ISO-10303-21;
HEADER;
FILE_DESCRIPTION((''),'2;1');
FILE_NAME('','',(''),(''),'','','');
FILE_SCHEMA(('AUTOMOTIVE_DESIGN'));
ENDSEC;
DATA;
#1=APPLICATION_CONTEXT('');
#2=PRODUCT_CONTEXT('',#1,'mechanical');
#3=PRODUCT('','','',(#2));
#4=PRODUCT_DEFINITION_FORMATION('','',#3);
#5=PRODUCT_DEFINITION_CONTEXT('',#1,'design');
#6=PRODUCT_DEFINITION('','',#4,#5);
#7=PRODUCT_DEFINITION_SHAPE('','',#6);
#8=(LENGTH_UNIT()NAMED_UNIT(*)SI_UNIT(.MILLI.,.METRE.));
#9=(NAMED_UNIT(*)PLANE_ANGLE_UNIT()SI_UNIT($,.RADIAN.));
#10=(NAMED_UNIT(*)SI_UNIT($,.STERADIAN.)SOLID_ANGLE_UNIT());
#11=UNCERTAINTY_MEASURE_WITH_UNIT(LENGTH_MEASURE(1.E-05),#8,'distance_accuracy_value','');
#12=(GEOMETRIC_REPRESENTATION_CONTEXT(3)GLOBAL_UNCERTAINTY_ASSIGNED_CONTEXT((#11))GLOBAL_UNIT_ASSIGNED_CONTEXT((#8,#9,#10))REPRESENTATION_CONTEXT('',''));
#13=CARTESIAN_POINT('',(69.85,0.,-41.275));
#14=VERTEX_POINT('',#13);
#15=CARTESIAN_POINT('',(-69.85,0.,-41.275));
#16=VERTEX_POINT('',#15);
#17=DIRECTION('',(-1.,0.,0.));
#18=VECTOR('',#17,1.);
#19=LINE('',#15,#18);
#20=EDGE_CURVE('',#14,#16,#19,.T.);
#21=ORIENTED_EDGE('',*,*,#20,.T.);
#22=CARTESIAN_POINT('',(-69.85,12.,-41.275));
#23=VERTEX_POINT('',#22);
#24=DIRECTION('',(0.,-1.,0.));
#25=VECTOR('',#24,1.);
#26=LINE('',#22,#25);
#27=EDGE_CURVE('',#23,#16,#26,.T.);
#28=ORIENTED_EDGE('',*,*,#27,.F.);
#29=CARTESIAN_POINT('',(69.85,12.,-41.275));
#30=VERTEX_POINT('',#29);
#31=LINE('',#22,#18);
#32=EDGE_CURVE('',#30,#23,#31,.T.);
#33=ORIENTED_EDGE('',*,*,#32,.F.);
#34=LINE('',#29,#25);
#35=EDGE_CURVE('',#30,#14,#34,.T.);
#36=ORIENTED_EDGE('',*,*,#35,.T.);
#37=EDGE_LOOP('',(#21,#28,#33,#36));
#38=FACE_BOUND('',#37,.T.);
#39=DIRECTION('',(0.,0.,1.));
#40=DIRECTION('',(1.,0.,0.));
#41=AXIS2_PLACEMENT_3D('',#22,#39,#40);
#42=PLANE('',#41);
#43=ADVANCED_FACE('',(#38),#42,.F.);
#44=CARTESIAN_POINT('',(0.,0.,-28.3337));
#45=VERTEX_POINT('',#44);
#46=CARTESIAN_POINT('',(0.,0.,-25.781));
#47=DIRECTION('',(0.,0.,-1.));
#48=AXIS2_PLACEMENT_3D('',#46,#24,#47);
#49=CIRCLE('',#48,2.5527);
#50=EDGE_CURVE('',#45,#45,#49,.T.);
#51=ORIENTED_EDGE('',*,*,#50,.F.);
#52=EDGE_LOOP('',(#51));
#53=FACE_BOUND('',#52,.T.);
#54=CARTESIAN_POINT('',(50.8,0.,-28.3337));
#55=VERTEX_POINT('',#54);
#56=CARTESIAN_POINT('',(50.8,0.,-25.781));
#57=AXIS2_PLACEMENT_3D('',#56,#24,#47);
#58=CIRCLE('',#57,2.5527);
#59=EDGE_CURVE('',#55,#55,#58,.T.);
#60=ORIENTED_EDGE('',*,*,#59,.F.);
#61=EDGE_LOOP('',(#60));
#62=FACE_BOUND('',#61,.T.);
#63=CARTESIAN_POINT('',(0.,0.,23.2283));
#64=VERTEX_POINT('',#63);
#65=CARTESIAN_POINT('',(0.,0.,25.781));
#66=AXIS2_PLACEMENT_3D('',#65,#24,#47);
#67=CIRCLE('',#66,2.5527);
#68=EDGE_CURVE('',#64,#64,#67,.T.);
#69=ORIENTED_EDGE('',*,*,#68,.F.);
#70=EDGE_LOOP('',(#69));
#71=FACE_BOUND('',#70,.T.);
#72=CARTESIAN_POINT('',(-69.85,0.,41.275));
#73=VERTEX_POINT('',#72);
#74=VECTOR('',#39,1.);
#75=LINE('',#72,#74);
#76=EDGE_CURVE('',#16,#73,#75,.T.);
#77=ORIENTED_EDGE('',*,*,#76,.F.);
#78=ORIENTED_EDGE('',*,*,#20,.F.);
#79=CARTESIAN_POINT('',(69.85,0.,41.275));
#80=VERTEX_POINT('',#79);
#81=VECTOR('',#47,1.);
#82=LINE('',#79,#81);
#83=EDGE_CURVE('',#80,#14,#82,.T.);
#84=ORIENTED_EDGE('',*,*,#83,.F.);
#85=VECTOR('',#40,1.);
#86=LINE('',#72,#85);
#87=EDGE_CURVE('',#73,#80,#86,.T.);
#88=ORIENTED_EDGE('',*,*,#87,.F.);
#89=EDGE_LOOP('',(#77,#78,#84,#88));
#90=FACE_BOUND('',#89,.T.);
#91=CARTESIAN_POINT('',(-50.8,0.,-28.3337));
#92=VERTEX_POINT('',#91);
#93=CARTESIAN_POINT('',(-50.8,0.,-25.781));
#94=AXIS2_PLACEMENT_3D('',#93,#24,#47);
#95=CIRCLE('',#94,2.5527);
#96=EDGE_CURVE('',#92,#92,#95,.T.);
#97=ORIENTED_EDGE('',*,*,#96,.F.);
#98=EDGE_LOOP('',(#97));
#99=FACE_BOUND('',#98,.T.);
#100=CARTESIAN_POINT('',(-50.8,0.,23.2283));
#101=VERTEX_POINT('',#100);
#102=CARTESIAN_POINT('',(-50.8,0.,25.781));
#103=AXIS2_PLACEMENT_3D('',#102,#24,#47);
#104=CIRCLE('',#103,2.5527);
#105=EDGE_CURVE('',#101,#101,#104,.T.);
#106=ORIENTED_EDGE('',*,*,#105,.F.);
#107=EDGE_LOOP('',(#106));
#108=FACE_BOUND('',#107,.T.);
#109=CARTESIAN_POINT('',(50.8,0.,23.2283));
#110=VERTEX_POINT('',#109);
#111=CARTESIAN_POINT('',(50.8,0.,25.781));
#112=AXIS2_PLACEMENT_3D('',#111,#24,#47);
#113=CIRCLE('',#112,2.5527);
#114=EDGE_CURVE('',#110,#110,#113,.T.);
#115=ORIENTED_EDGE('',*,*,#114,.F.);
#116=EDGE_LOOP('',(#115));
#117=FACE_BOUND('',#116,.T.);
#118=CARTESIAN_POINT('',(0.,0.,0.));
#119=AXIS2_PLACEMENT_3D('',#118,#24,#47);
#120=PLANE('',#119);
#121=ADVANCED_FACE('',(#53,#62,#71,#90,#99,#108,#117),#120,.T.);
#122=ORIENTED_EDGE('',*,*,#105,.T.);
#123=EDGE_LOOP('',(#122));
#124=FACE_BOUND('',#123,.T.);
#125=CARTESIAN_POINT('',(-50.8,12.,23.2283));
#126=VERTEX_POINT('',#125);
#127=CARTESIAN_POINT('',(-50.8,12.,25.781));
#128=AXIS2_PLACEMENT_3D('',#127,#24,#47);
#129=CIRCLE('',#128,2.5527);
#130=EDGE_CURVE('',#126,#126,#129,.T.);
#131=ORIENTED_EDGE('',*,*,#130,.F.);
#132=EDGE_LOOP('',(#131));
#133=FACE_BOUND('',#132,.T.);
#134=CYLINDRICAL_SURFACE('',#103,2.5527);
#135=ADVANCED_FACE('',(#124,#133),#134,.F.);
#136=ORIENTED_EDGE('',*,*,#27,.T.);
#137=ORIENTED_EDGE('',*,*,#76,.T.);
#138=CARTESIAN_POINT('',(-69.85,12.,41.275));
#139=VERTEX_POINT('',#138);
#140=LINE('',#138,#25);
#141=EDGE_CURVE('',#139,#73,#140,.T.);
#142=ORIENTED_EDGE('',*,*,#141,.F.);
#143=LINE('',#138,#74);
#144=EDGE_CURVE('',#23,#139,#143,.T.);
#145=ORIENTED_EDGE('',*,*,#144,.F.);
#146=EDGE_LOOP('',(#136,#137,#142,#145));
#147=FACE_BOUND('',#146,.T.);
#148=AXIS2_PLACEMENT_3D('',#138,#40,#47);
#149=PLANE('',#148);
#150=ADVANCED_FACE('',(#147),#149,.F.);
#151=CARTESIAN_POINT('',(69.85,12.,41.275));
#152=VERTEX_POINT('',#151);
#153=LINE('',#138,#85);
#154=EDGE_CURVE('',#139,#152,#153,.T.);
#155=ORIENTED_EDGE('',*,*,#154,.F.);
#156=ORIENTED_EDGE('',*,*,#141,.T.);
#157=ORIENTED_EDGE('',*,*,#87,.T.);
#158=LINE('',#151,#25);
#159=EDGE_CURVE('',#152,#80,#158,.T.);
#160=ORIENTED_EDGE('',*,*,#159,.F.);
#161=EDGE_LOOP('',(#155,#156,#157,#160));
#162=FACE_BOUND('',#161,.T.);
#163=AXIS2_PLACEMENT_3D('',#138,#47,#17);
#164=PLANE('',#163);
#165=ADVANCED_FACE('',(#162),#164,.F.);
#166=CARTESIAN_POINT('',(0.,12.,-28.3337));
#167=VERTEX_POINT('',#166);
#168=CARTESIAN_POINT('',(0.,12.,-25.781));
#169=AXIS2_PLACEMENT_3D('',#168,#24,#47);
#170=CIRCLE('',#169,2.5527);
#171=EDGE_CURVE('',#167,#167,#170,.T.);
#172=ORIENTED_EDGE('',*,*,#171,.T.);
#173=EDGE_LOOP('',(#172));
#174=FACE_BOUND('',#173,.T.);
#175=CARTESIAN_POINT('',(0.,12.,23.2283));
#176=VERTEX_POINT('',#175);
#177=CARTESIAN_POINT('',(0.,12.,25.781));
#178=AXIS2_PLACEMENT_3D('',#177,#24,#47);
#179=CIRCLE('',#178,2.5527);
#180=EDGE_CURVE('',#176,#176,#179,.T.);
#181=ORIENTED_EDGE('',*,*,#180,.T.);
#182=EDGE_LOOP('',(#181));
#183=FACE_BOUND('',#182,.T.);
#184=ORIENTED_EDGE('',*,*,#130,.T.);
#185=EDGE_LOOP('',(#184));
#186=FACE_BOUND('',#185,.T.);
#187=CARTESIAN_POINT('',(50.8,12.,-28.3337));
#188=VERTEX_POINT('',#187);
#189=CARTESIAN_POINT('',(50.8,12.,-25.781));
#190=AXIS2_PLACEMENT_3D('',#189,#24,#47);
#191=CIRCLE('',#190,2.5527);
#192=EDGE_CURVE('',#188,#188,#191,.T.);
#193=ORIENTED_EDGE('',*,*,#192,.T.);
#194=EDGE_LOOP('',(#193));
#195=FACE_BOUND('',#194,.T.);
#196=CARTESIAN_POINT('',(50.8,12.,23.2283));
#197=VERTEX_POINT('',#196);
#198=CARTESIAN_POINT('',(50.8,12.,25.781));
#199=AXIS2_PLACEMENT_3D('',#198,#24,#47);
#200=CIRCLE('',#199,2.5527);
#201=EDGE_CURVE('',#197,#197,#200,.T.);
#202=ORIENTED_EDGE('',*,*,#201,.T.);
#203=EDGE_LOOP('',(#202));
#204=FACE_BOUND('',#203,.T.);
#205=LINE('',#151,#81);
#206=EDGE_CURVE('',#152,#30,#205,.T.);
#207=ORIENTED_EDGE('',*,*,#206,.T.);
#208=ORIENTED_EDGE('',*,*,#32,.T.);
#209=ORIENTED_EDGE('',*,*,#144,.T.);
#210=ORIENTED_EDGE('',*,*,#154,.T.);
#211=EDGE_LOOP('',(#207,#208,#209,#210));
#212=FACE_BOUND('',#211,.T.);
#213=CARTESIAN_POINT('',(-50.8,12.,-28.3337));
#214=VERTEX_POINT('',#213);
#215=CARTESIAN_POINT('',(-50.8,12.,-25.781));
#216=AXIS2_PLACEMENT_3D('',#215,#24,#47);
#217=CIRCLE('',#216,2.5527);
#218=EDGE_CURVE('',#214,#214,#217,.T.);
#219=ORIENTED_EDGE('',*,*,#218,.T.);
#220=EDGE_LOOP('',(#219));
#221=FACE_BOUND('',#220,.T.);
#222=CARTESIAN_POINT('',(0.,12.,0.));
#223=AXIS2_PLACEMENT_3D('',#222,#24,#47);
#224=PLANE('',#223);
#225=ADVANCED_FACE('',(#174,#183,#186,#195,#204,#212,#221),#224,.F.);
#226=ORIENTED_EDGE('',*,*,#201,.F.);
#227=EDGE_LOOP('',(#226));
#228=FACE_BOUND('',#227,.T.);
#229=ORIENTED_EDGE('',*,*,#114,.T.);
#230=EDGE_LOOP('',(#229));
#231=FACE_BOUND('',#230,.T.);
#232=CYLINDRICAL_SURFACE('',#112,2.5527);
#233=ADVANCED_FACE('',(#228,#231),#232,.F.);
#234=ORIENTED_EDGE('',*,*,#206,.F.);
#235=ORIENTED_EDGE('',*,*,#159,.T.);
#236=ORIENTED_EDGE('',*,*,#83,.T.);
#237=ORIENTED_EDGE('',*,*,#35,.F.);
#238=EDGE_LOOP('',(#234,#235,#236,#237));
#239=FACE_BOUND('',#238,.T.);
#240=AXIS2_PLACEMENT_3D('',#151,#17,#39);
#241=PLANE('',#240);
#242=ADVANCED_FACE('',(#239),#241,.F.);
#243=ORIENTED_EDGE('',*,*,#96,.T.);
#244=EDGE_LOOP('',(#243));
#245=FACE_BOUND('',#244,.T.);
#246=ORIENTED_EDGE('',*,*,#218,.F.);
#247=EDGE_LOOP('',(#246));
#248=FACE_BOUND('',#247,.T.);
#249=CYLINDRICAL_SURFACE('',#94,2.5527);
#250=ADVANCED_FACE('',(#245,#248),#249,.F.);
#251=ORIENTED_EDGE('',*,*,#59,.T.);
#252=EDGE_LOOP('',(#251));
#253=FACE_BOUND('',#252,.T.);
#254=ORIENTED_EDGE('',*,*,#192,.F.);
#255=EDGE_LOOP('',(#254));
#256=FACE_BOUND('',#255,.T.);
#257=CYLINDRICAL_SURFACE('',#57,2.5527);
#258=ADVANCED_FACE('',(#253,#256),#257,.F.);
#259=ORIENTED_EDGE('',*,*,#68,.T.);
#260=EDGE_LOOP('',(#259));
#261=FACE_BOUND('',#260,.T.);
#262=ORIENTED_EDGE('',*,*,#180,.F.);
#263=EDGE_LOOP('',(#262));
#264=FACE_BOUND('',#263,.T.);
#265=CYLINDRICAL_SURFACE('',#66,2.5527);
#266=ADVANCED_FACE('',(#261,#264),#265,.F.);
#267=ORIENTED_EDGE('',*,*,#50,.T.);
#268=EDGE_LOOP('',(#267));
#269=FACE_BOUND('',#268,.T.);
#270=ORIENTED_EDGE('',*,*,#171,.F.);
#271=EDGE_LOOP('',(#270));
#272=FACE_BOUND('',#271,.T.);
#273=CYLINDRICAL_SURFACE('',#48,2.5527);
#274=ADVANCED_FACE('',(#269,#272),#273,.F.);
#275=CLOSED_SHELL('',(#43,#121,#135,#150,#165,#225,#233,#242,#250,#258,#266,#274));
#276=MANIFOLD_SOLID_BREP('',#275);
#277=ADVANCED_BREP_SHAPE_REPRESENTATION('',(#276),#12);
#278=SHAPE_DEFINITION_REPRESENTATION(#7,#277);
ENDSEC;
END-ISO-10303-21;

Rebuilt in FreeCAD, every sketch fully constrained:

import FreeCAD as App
import Part
import Sketcher
Q = App.Units.Quantity

doc = App.newDocument("Part")
body = doc.addObject("PartDesign::Body", "Body")

# Sketch on XZ plane
sketch1 = body.newObject("Sketcher::SketchObject", "Sketch")
sketch1.AttachmentSupport = (doc.getObject("XZ_Plane"), [""])
sketch1.MapMode = "FlatFace"
sketch1.addGeometry([
    Part.LineSegment(App.Vector(-70, -41, 0), App.Vector(-70, 41, 0)),
    Part.LineSegment(App.Vector(-70, 41, 0), App.Vector(70, 41, 0)),
    Part.LineSegment(App.Vector(70, 41, 0), App.Vector(70, -41, 0)),
    Part.LineSegment(App.Vector(70, -41, 0), App.Vector(-70, -41, 0)),
], False)
sketch1.addConstraint([
    Sketcher.Constraint("Coincident", 0, 2, 1, 1),
    Sketcher.Constraint("Coincident", 1, 2, 2, 1),
    Sketcher.Constraint("Coincident", 2, 2, 3, 1),
    Sketcher.Constraint("Coincident", 3, 2, 0, 1),
    Sketcher.Constraint("Vertical", 0),
    Sketcher.Constraint("Horizontal", 1),
    Sketcher.Constraint("Vertical", 2),
    Sketcher.Constraint("Horizontal", 3),
    Sketcher.Constraint("Symmetric", 0, 2, 2, 2, -1, 1),
    Sketcher.Constraint("DistanceX", 1, 1, 1, 2, Q("5.5 in")),
    Sketcher.Constraint("DistanceY", 0, 1, 0, 2, Q("3.25 in")),
])
pad1 = body.newObject("PartDesign::Pad", "Pad")
pad1.Profile = sketch1
pad1.Length = 12
pad1.Reversed = True

# Sketch on XZ plane
sketch2 = body.newObject("Sketcher::SketchObject", "Sketch001")
sketch2.AttachmentSupport = (doc.getObject("XZ_Plane"), [""])
sketch2.MapMode = "FlatFace"
sketch2.addGeometry([
    Part.Circle(App.Vector(50.8, -25.8, 0), App.Vector(0, 0, 1), 2.6),  # 0
    Part.Circle(App.Vector(0, -25.8, 0), App.Vector(0, 0, 1), 2.6),  # 1
    Part.Circle(App.Vector(-50.8, -25.8, 0), App.Vector(0, 0, 1), 2.6),  # 2
    Part.Circle(App.Vector(-50.8, 25.8, 0), App.Vector(0, 0, 1), 2.6),  # 3
    Part.Circle(App.Vector(0, 25.8, 0), App.Vector(0, 0, 1), 2.6),  # 4
    Part.Circle(App.Vector(50.8, 25.8, 0), App.Vector(0, 0, 1), 2.6),  # 5
], False)
sketch2.addConstraint([
    Sketcher.Constraint("Equal", 0, 1),
    Sketcher.Constraint("Equal", 1, 2),
    Sketcher.Constraint("Equal", 2, 3),
    Sketcher.Constraint("Equal", 3, 4),
    Sketcher.Constraint("Equal", 4, 5),
    Sketcher.Constraint("Symmetric", 0, 3, 3, 3, -1, 1),
    Sketcher.Constraint("Symmetric", 1, 3, 4, 3, -1, 1),
    Sketcher.Constraint("Symmetric", 2, 3, 5, 3, -1, 1),
    Sketcher.Constraint("Symmetric", 0, 3, 2, 3, -2),
    Sketcher.Constraint("PointOnObject", 1, 3, -2),
    Sketcher.Constraint("Horizontal", 0, 3, 1, 3),
    Sketcher.Constraint("Diameter", 0, Q("0.201 in")),
    Sketcher.Constraint("DistanceX", -1, 1, 0, 3, Q("2 in")),
    Sketcher.Constraint("DistanceY", 2, 3, 3, 3, Q("2.03 in")),
])
doc.recompute()
hole = body.newObject("PartDesign::Hole", "Hole")
hole.Profile = sketch2
hole.ThreadType = "None"
hole.Diameter = Q("0.201 in")
hole.DepthType = "ThroughAll"

doc.recompute()
